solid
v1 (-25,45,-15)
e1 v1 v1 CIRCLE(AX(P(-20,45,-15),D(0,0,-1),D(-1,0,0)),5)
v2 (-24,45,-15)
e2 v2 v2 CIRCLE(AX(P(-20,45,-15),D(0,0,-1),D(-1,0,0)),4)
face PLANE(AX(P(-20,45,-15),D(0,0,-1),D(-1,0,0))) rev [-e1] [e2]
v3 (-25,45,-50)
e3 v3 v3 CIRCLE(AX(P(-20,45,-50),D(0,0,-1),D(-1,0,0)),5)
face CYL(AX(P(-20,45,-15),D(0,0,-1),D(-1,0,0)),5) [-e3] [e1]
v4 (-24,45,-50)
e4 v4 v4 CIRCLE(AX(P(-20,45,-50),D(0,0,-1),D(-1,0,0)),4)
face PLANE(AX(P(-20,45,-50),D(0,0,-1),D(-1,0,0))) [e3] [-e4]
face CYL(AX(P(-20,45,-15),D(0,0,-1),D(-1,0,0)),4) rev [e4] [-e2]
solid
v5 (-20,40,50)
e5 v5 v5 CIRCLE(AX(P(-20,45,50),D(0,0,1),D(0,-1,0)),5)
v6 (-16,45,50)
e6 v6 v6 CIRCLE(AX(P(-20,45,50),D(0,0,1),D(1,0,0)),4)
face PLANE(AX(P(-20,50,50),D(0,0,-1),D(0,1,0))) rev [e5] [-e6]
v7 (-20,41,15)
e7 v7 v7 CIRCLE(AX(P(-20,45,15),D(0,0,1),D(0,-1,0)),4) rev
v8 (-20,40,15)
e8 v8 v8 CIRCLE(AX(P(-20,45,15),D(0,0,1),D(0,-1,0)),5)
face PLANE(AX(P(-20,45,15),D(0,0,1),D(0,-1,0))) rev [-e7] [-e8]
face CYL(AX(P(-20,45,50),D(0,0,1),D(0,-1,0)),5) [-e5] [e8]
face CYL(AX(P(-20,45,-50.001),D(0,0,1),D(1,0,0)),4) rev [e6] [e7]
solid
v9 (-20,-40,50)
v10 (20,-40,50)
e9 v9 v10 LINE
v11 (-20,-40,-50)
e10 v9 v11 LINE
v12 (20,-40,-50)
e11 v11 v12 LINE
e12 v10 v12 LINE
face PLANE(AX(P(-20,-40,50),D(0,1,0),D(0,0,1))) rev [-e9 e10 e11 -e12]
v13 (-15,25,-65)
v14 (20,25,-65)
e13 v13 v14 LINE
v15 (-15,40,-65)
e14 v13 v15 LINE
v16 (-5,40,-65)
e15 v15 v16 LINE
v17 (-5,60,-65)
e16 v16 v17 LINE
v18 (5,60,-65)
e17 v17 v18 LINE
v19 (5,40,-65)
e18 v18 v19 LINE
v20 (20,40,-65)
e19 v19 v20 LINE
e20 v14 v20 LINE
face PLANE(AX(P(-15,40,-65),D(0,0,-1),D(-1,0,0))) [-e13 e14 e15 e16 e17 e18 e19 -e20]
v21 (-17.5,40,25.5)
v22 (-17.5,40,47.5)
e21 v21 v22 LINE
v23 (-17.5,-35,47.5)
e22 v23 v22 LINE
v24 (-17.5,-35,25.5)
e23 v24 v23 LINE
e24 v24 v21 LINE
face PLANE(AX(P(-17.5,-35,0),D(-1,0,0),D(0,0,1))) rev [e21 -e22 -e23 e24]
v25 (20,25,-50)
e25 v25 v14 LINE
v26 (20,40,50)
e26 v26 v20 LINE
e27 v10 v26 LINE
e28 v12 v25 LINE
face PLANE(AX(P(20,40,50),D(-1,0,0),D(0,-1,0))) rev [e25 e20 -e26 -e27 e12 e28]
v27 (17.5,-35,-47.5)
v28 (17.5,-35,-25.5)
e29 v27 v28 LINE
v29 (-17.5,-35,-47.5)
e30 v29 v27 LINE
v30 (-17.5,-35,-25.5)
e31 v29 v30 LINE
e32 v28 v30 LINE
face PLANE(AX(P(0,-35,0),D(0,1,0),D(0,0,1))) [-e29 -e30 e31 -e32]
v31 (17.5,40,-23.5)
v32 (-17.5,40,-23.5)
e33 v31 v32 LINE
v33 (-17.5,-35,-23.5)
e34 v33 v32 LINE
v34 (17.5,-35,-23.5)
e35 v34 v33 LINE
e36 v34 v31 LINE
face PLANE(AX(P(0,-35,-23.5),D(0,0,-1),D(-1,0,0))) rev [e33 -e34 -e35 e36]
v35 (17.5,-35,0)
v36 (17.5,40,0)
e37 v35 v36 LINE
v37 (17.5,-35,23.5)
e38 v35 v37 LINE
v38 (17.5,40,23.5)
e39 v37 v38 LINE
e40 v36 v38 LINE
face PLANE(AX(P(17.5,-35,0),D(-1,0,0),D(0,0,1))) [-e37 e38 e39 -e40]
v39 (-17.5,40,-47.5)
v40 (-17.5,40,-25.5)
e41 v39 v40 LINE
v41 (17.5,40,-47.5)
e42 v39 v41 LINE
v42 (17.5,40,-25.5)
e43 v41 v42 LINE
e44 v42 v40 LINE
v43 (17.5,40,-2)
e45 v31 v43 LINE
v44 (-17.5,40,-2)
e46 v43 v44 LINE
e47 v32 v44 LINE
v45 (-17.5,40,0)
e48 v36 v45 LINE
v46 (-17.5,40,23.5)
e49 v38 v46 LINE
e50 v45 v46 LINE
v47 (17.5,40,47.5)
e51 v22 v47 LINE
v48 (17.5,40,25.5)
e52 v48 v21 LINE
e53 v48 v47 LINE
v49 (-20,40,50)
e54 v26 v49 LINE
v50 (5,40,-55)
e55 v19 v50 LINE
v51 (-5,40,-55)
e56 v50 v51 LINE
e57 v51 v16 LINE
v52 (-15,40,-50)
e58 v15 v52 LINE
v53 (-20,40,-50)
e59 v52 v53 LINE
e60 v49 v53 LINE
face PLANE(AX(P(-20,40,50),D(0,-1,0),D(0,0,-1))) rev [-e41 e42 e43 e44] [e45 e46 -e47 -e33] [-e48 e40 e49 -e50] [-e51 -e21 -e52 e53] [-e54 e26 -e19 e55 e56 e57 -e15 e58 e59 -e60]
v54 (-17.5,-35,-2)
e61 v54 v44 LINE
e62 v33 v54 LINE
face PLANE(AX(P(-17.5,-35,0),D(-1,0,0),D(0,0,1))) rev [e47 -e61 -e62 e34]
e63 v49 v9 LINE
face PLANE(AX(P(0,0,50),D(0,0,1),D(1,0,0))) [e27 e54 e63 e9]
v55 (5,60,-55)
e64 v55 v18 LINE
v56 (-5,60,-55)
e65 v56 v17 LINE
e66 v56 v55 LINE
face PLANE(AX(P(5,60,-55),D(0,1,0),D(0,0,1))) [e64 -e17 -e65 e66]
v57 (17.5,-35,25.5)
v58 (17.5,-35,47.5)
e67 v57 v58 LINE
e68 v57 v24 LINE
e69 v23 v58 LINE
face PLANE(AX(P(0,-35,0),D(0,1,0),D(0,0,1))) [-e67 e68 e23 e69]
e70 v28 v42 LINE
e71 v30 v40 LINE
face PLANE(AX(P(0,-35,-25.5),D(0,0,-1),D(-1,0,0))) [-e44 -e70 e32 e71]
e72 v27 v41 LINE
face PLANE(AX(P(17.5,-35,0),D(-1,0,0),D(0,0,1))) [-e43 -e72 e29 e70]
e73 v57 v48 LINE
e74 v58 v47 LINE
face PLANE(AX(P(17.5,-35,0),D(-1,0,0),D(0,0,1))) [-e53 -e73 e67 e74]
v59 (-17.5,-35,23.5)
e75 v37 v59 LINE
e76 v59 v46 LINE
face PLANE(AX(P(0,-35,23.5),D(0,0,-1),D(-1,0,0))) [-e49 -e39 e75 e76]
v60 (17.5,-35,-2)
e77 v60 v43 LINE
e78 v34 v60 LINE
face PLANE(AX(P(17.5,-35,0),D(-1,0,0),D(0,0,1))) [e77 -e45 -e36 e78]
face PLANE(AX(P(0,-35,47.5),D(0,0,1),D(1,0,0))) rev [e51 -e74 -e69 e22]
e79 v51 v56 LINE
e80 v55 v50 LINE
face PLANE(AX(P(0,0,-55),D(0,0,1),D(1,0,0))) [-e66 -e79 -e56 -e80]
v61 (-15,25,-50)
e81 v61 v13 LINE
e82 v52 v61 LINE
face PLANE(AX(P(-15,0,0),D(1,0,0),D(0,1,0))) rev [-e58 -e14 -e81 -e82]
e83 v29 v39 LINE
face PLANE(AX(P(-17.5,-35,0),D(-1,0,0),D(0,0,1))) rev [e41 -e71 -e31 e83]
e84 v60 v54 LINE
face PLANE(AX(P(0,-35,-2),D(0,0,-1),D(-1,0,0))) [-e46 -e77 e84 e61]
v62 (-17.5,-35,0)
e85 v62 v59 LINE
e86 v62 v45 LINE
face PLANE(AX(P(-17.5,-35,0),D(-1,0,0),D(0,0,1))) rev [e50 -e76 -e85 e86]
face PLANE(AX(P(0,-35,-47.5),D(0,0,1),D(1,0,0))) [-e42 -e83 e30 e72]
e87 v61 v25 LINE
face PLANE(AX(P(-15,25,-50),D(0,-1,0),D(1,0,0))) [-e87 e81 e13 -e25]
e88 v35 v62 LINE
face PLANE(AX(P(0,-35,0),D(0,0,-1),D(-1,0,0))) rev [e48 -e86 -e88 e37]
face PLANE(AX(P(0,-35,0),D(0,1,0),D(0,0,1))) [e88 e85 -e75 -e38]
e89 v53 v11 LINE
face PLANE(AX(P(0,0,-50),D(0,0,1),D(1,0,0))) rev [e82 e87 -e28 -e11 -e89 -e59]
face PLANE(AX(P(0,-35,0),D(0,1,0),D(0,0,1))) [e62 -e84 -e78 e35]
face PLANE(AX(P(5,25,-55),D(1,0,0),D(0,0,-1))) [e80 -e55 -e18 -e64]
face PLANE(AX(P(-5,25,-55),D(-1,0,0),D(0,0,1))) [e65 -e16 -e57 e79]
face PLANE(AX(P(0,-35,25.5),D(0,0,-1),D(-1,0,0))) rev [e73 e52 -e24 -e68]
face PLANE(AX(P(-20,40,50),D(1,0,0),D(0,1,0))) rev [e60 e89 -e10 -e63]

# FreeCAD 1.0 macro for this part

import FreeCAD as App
import Part
import Sketcher

V = App.Vector

doc = App.newDocument("Part")
body = doc.addObject("PartDesign::Body", "Body")

sketch1 = body.newObject("Sketcher::SketchObject", "Sketch")
sketch1.AttachmentSupport = (doc.getObject("XY_Plane"), [""])
sketch1.MapMode = "FlatFace"
sketch1.addGeometry(Part.LineSegment(V(-20, 40, 0), V(-20, -40, 0)), False)
sketch1.addGeometry(Part.LineSegment(V(-20, -40, 0), V(20, -40, 0)), False)
sketch1.addGeometry(Part.LineSegment(V(20, -40, 0), V(20, 40, 0)), False)
sketch1.addGeometry(Part.LineSegment(V(20, 40, 0), V(-20, 40, 0)), False)
sketch1.addConstraint(Sketcher.Constraint("Coincident", 0, 2, 1, 1))
sketch1.addConstraint(Sketcher.Constraint("Coincident", 1, 2, 2, 1))
sketch1.addConstraint(Sketcher.Constraint("Coincident", 2, 2, 3, 1))
sketch1.addConstraint(Sketcher.Constraint("Coincident", 3, 2, 0, 1))
sketch1.addConstraint(Sketcher.Constraint("Vertical", 0))
sketch1.addConstraint(Sketcher.Constraint("Horizontal", 1))
sketch1.addConstraint(Sketcher.Constraint("Vertical", 2))
sketch1.addConstraint(Sketcher.Constraint("Horizontal", 3))
sketch1.addConstraint(Sketcher.Constraint("Symmetric", 0, 2, 2, 2, -1, 1))
sketch1.addConstraint(Sketcher.Constraint("DistanceX", 1, 1, 1, 2, 40.0))
sketch1.addConstraint(Sketcher.Constraint("DistanceY", 0, 2, 0, 1, 80.0))
pad1 = body.newObject("PartDesign::Pad", "Pad")
pad1.Profile = sketch1
pad1.Length = 100
pad1.Midplane = True

sketch2 = body.newObject("Sketcher::SketchObject", "Sketch001")
sketch2.AttachmentSupport = (doc.getObject("XZ_Plane"), [""])
sketch2.MapMode = "FlatFace"
sketch2.AttachmentOffset = App.Placement(V(0, 0, -40), App.Rotation())
sketch2.addGeometry(Part.LineSegment(V(-18, 26, 0), V(-18, 48, 0)), False)
sketch2.addGeometry(Part.LineSegment(V(-18, 48, 0), V(18, 48, 0)), False)
sketch2.addGeometry(Part.LineSegment(V(18, 48, 0), V(18, 26, 0)), False)
sketch2.addGeometry(Part.LineSegment(V(18, 26, 0), V(-18, 26, 0)), False)
sketch2.addGeometry(Part.LineSegment(V(-18, 0, 0), V(-18, 24, 0)), False)
sketch2.addGeometry(Part.LineSegment(V(-18, 24, 0), V(18, 24, 0)), False)
sketch2.addGeometry(Part.LineSegment(V(18, 24, 0), V(18, 0, 0)), False)
sketch2.addGeometry(Part.LineSegment(V(18, 0, 0), V(-18, 0, 0)), False)
sketch2.addGeometry(Part.LineSegment(V(-18, -24, 0), V(-18, -2, 0)), False)
sketch2.addGeometry(Part.LineSegment(V(-18, -2, 0), V(18, -2, 0)), False)
sketch2.addGeometry(Part.LineSegment(V(18, -2, 0), V(18, -24, 0)), False)
sketch2.addGeometry(Part.LineSegment(V(18, -24, 0), V(-18, -24, 0)), False)
sketch2.addGeometry(Part.LineSegment(V(-18, -48, 0), V(-18, -26, 0)), False)
sketch2.addGeometry(Part.LineSegment(V(-18, -26, 0), V(18, -26, 0)), False)
sketch2.addGeometry(Part.LineSegment(V(18, -26, 0), V(18, -48, 0)), False)
sketch2.addGeometry(Part.LineSegment(V(18, -48, 0), V(-18, -48, 0)), False)
sketch2.addConstraint(Sketcher.Constraint("Coincident", 0, 2, 1, 1))
sketch2.addConstraint(Sketcher.Constraint("Coincident", 1, 2, 2, 1))
sketch2.addConstraint(Sketcher.Constraint("Coincident", 2, 2, 3, 1))
sketch2.addConstraint(Sketcher.Constraint("Coincident", 3, 2, 0, 1))
sketch2.addConstraint(Sketcher.Constraint("Coincident", 4, 2, 5, 1))
sketch2.addConstraint(Sketcher.Constraint("Coincident", 5, 2, 6, 1))
sketch2.addConstraint(Sketcher.Constraint("Coincident", 6, 2, 7, 1))
sketch2.addConstraint(Sketcher.Constraint("Coincident", 7, 2, 4, 1))
sketch2.addConstraint(Sketcher.Constraint("Coincident", 8, 2, 9, 1))
sketch2.addConstraint(Sketcher.Constraint("Coincident", 9, 2, 10, 1))
sketch2.addConstraint(Sketcher.Constraint("Coincident", 10, 2, 11, 1))
sketch2.addConstraint(Sketcher.Constraint("Coincident", 11, 2, 8, 1))
sketch2.addConstraint(Sketcher.Constraint("Coincident", 12, 2, 13, 1))
sketch2.addConstraint(Sketcher.Constraint("Coincident", 13, 2, 14, 1))
sketch2.addConstraint(Sketcher.Constraint("Coincident", 14, 2, 15, 1))
sketch2.addConstraint(Sketcher.Constraint("Coincident", 15, 2, 12, 1))
sketch2.addConstraint(Sketcher.Constraint("Vertical", 0))
sketch2.addConstraint(Sketcher.Constraint("Horizontal", 1))
sketch2.addConstraint(Sketcher.Constraint("Vertical", 2))
sketch2.addConstraint(Sketcher.Constraint("Horizontal", 3))
sketch2.addConstraint(Sketcher.Constraint("Vertical", 4))
sketch2.addConstraint(Sketcher.Constraint("Horizontal", 5))
sketch2.addConstraint(Sketcher.Constraint("Vertical", 6))
sketch2.addConstraint(Sketcher.Constraint("Horizontal", 7))
sketch2.addConstraint(Sketcher.Constraint("Vertical", 8))
sketch2.addConstraint(Sketcher.Constraint("Horizontal", 9))
sketch2.addConstraint(Sketcher.Constraint("Vertical", 10))
sketch2.addConstraint(Sketcher.Constraint("Horizontal", 11))
sketch2.addConstraint(Sketcher.Constraint("Vertical", 12))
sketch2.addConstraint(Sketcher.Constraint("Horizontal", 13))
sketch2.addConstraint(Sketcher.Constraint("Vertical", 14))
sketch2.addConstraint(Sketcher.Constraint("Horizontal", 15))
sketch2.addConstraint(Sketcher.Constraint("Symmetric", 6, 2, 7, 2, -1, 1))
sketch2.addConstraint(Sketcher.Constraint("Symmetric", 4, 2, 10, 2, -1, 1))
sketch2.addConstraint(Sketcher.Constraint("Symmetric", 2, 2, 12, 2, -1, 1))
sketch2.addConstraint(Sketcher.Constraint("Symmetric", 0, 2, 14, 2, -1, 1))
sketch2.addConstraint(Sketcher.Constraint("Vertical", 3, 2, 4, 2))
sketch2.addConstraint(Sketcher.Constraint("Vertical", 2, 2, 5, 2))
sketch2.addConstraint(Sketcher.Constraint("Vertical", 7, 2, 8, 2))
sketch2.addConstraint(Sketcher.Constraint("DistanceX", 1, 1, 1, 2, 35.0))
sketch2.addConstraint(Sketcher.Constraint("DistanceY", 0, 1, 0, 2, 22.0))
sketch2.addConstraint(Sketcher.Constraint("DistanceY", 4, 1, 4, 2, 23.5))
sketch2.addConstraint(Sketcher.Constraint("DistanceY", 8, 1, 8, 2, 21.5))
sketch2.addConstraint(Sketcher.Constraint("DistanceY", 4, 2, 3, 2, 2.0))
pocket1 = body.newObject("PartDesign::Pocket", "Pocket")
pocket1.Profile = sketch2
pocket1.Length = 75
pocket1.Reversed = True

sketch3 = body.newObject("Sketcher::SketchObject", "Sketch002")
sketch3.AttachmentSupport = (doc.getObject("YZ_Plane"), [""])
sketch3.MapMode = "FlatFace"
sketch3.AttachmentOffset = App.Placement(V(0, 0, 20), App.Rotation())
sketch3.addGeometry(Part.LineSegment(V(40, -50, 0), V(25, -50, 0)), False)
sketch3.addGeometry(Part.LineSegment(V(25, -50, 0), V(25, -65, 0)), False)
sketch3.addGeometry(Part.LineSegment(V(25, -65, 0), V(40, -65, 0)), False)
sketch3.addGeometry(Part.LineSegment(V(40, -65, 0), V(40, -50, 0)), False)
sketch3.addConstraint(Sketcher.Constraint("Coincident", 0, 2, 1, 1))
sketch3.addConstraint(Sketcher.Constraint("Coincident", 1, 2, 2, 1))
sketch3.addConstraint(Sketcher.Constraint("Coincident", 2, 2, 3, 1))
sketch3.addConstraint(Sketcher.Constraint("Coincident", 3, 2, 0, 1))
sketch3.addConstraint(Sketcher.Constraint("Horizontal", 0))
sketch3.addConstraint(Sketcher.Constraint("Vertical", 1))
sketch3.addConstraint(Sketcher.Constraint("Horizontal", 2))
sketch3.addConstraint(Sketcher.Constraint("Vertical", 3))
sketch3.addConstraint(Sketcher.Constraint("Equal", 2, 1))
sketch3.addConstraint(Sketcher.Constraint("DistanceX", 0, 2, 0, 1, 15.0))
sketch3.addConstraint(Sketcher.Constraint("DistanceX", -1, 1, 0, 2, 25.0))
sketch3.addConstraint(Sketcher.Constraint("DistanceY", 0, 2, -1, 1, 50.0))
pad2 = body.newObject("PartDesign::Pad", "Pad001")
pad2.Profile = sketch3
pad2.Length = 35
pad2.Reversed = True

sketch4 = body.newObject("Sketcher::SketchObject", "Sketch003")
sketch4.AttachmentSupport = (doc.getObject("XY_Plane"), [""])
sketch4.MapMode = "FlatFace"
sketch4.AttachmentOffset = App.Placement(V(0, 0, -65), App.Rotation())
sketch4.addGeometry(Part.LineSegment(V(5, 60, 0), V(5, 25, 0)), False)
sketch4.addGeometry(Part.LineSegment(V(5, 25, 0), V(-5, 25, 0)), False)
sketch4.addGeometry(Part.LineSegment(V(-5, 25, 0), V(-5, 60, 0)), False)
sketch4.addGeometry(Part.LineSegment(V(-5, 60, 0), V(5, 60, 0)), False)
sketch4.addConstraint(Sketcher.Constraint("Coincident", 0, 2, 1, 1))
sketch4.addConstraint(Sketcher.Constraint("Coincident", 1, 2, 2, 1))
sketch4.addConstraint(Sketcher.Constraint("Coincident", 2, 2, 3, 1))
sketch4.addConstraint(Sketcher.Constraint("Coincident", 3, 2, 0, 1))
sketch4.addConstraint(Sketcher.Constraint("Vertical", 0))
sketch4.addConstraint(Sketcher.Constraint("Horizontal", 1))
sketch4.addConstraint(Sketcher.Constraint("Vertical", 2))
sketch4.addConstraint(Sketcher.Constraint("Horizontal", 3))
sketch4.addConstraint(Sketcher.Constraint("DistanceX", 1, 2, 1, 1, 10.0))
sketch4.addConstraint(Sketcher.Constraint("DistanceY", 0, 2, 0, 1, 35.0))
sketch4.addConstraint(Sketcher.Constraint("DistanceX", -1, 1, 0, 2, 5.0))
sketch4.addConstraint(Sketcher.Constraint("DistanceY", -1, 1, 0, 2, 25.0))
pad3 = body.newObject("PartDesign::Pad", "Pad002")
pad3.Profile = sketch4
pad3.Length = 10
body2 = doc.addObject("PartDesign::Body", "Body001")

sketch5 = body2.newObject("Sketcher::SketchObject", "Sketch004")
sketch5.AttachmentSupport = (doc.getObject("YZ_Plane001"), [""])
sketch5.MapMode = "FlatFace"
sketch5.AttachmentOffset = App.Placement(V(0, 0, -20), App.Rotation())
sketch5.addGeometry(Part.LineSegment(V(45, 15, 0), V(40, 15, 0)), False)
sketch5.addGeometry(Part.LineSegment(V(40, 15, 0), V(40, 50, 0)), False)
sketch5.addGeometry(Part.LineSegment(V(40, 50, 0), V(45, 50, 0)), False)
sketch5.addGeometry(Part.LineSegment(V(45, 50, 0), V(45, 15, 0)), False)
sketch5.addGeometry(Part.LineSegment(V(45, 50, 0), V(45, 15, 0)), True)
sketch5.addConstraint(Sketcher.Constraint("Coincident", 0, 2, 1, 1))
sketch5.addConstraint(Sketcher.Constraint("Coincident", 1, 2, 2, 1))
sketch5.addConstraint(Sketcher.Constraint("Coincident", 2, 2, 3, 1))
sketch5.addConstraint(Sketcher.Constraint("Coincident", 3, 2, 0, 1))
sketch5.addConstraint(Sketcher.Constraint("Horizontal", 0))
sketch5.addConstraint(Sketcher.Constraint("Vertical", 1))
sketch5.addConstraint(Sketcher.Constraint("Horizontal", 2))
sketch5.addConstraint(Sketcher.Constraint("Vertical", 3))
sketch5.addConstraint(Sketcher.Constraint("Vertical", 4))
sketch5.addConstraint(Sketcher.Constraint("Coincident", 4, 1, 2, 2))
sketch5.addConstraint(Sketcher.Constraint("Horizontal", 0, 2, 4, 2))
sketch5.addConstraint(Sketcher.Constraint("DistanceX", 0, 2, 0, 1, 5.0))
sketch5.addConstraint(Sketcher.Constraint("DistanceY", 1, 1, 1, 2, 35.0))
sketch5.addConstraint(Sketcher.Constraint("DistanceX", -1, 1, 0, 2, 40.0))
sketch5.addConstraint(Sketcher.Constraint("DistanceY", -1, 1, 0, 2, 15.0))
revolution = body2.newObject("PartDesign::Revolution", "Revolution")
revolution.Profile = sketch5
revolution.ReferenceAxis = (sketch5, ["Axis0"])
revolution.Angle = 360

sketch6 = body2.newObject("Sketcher::SketchObject", "Sketch005")
sketch6.AttachmentSupport = (doc.getObject("XY_Plane001"), [""])
sketch6.MapMode = "FlatFace"
sketch6.AttachmentOffset = App.Placement(V(0, 0, 50), App.Rotation())
sketch6.addGeometry(Part.Circle(V(-20, 45, 0), V(0, 0, 1), 4), False)
sketch6.addConstraint(Sketcher.Constraint("Diameter", 0, 8.0))
sketch6.addConstraint(Sketcher.Constraint("DistanceX", 0, 3, -1, 1, 20.0))
sketch6.addConstraint(Sketcher.Constraint("DistanceY", -1, 1, 0, 3, 45.0))
pocket2 = body2.newObject("PartDesign::Pocket", "Pocket001")
pocket2.Profile = sketch6
pocket2.Length = 35
body3 = doc.addObject("PartDesign::Body", "Body002")

sketch7 = body3.newObject("Sketcher::SketchObject", "Sketch006")
sketch7.AttachmentSupport = (doc.getObject("XY_Plane002"), [""])
sketch7.MapMode = "FlatFace"
sketch7.AttachmentOffset = App.Placement(V(0, 0, -50), App.Rotation())
sketch7.addGeometry(Part.Circle(V(-20, 45, 0), V(0, 0, 1), 5), False)
sketch7.addGeometry(Part.Circle(V(-20, 45, 0), V(0, 0, 1), 4), False)
sketch7.addConstraint(Sketcher.Constraint("Coincident", 1, 3, 0, 3))
sketch7.addConstraint(Sketcher.Constraint("Diameter", 0, 10.0))
sketch7.addConstraint(Sketcher.Constraint("Diameter", 1, 8.0))
sketch7.addConstraint(Sketcher.Constraint("DistanceX", 0, 3, -1, 1, 20.0))
sketch7.addConstraint(Sketcher.Constraint("DistanceY", -1, 1, 0, 3, 45.0))
pad4 = body3.newObject("PartDesign::Pad", "Pad003")
pad4.Profile = sketch7
pad4.Length = 35

doc.recompute()
